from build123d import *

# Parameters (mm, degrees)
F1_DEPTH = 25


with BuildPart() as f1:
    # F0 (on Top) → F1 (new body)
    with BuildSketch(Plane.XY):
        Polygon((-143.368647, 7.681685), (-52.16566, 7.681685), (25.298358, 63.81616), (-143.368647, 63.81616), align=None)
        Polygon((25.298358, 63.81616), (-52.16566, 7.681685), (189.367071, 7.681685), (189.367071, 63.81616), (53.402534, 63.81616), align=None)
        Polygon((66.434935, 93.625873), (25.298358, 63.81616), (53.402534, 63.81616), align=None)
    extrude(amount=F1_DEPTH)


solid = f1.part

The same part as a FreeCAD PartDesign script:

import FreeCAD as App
import Part
import Sketcher
from FreeCAD import Vector


def add_polygon(sketch, points):
    """Adds a closed chain of lines whose ends are joined by coincident constraints."""
    first, n = sketch.GeometryCount, len(points)
    for a, b in zip(points, points[1:] + points[:1]):
        sketch.addGeometry(Part.LineSegment(App.Vector(*a, 0), App.Vector(*b, 0)), False)
    for i in range(n):
        sketch.addConstraint(Sketcher.Constraint("Coincident", first + i, 2, first + (i + 1) % n, 1))

doc = App.newDocument("Part")
body = doc.addObject("PartDesign::Body", "Body")

sketch1 = body.newObject("Sketcher::SketchObject", "Sketch")
sketch1.AttachmentSupport = (doc.getObject("XY_Plane"), [""])
sketch1.MapMode = "FlatFace"
add_polygon(sketch1, [(-143, 8), (189, 8), (189, 64), (53, 64), (66, 94), (25, 64), (-143, 64)])
sketch1.addConstraint([
    Sketcher.Constraint("Horizontal", 0),
    Sketcher.Constraint("Vertical", 1),
    Sketcher.Constraint("Horizontal", 2),
    Sketcher.Constraint("Horizontal", 5),
    Sketcher.Constraint("Vertical", 6),
    Sketcher.Constraint("Horizontal", 2, 2, 4, 2),
    Sketcher.Constraint("DistanceX", 0, 1, 0, 2, 332.735718),
    Sketcher.Constraint("DistanceX", 2, 2, 3, 2, 13.032401),
    Sketcher.Constraint("Distance", 3, 32.53402),
    Sketcher.Constraint("Distance", 4, 50.801939),
    Sketcher.Constraint("DistanceX", 2, 2, 2, 1, 135.964537),
    Sketcher.Constraint("DistanceY", 1, 1, 1, 2, 56.134475),
    Sketcher.Constraint("DistanceX", -1, 1, 0, 2, 189.367071),
    Sketcher.Constraint("DistanceY", -1, 1, 1, 2, 63.81616),
])
pad1 = body.newObject("PartDesign::Pad", "Pad")
pad1.Profile = sketch1
pad1.Length = 25

doc.recompute()
